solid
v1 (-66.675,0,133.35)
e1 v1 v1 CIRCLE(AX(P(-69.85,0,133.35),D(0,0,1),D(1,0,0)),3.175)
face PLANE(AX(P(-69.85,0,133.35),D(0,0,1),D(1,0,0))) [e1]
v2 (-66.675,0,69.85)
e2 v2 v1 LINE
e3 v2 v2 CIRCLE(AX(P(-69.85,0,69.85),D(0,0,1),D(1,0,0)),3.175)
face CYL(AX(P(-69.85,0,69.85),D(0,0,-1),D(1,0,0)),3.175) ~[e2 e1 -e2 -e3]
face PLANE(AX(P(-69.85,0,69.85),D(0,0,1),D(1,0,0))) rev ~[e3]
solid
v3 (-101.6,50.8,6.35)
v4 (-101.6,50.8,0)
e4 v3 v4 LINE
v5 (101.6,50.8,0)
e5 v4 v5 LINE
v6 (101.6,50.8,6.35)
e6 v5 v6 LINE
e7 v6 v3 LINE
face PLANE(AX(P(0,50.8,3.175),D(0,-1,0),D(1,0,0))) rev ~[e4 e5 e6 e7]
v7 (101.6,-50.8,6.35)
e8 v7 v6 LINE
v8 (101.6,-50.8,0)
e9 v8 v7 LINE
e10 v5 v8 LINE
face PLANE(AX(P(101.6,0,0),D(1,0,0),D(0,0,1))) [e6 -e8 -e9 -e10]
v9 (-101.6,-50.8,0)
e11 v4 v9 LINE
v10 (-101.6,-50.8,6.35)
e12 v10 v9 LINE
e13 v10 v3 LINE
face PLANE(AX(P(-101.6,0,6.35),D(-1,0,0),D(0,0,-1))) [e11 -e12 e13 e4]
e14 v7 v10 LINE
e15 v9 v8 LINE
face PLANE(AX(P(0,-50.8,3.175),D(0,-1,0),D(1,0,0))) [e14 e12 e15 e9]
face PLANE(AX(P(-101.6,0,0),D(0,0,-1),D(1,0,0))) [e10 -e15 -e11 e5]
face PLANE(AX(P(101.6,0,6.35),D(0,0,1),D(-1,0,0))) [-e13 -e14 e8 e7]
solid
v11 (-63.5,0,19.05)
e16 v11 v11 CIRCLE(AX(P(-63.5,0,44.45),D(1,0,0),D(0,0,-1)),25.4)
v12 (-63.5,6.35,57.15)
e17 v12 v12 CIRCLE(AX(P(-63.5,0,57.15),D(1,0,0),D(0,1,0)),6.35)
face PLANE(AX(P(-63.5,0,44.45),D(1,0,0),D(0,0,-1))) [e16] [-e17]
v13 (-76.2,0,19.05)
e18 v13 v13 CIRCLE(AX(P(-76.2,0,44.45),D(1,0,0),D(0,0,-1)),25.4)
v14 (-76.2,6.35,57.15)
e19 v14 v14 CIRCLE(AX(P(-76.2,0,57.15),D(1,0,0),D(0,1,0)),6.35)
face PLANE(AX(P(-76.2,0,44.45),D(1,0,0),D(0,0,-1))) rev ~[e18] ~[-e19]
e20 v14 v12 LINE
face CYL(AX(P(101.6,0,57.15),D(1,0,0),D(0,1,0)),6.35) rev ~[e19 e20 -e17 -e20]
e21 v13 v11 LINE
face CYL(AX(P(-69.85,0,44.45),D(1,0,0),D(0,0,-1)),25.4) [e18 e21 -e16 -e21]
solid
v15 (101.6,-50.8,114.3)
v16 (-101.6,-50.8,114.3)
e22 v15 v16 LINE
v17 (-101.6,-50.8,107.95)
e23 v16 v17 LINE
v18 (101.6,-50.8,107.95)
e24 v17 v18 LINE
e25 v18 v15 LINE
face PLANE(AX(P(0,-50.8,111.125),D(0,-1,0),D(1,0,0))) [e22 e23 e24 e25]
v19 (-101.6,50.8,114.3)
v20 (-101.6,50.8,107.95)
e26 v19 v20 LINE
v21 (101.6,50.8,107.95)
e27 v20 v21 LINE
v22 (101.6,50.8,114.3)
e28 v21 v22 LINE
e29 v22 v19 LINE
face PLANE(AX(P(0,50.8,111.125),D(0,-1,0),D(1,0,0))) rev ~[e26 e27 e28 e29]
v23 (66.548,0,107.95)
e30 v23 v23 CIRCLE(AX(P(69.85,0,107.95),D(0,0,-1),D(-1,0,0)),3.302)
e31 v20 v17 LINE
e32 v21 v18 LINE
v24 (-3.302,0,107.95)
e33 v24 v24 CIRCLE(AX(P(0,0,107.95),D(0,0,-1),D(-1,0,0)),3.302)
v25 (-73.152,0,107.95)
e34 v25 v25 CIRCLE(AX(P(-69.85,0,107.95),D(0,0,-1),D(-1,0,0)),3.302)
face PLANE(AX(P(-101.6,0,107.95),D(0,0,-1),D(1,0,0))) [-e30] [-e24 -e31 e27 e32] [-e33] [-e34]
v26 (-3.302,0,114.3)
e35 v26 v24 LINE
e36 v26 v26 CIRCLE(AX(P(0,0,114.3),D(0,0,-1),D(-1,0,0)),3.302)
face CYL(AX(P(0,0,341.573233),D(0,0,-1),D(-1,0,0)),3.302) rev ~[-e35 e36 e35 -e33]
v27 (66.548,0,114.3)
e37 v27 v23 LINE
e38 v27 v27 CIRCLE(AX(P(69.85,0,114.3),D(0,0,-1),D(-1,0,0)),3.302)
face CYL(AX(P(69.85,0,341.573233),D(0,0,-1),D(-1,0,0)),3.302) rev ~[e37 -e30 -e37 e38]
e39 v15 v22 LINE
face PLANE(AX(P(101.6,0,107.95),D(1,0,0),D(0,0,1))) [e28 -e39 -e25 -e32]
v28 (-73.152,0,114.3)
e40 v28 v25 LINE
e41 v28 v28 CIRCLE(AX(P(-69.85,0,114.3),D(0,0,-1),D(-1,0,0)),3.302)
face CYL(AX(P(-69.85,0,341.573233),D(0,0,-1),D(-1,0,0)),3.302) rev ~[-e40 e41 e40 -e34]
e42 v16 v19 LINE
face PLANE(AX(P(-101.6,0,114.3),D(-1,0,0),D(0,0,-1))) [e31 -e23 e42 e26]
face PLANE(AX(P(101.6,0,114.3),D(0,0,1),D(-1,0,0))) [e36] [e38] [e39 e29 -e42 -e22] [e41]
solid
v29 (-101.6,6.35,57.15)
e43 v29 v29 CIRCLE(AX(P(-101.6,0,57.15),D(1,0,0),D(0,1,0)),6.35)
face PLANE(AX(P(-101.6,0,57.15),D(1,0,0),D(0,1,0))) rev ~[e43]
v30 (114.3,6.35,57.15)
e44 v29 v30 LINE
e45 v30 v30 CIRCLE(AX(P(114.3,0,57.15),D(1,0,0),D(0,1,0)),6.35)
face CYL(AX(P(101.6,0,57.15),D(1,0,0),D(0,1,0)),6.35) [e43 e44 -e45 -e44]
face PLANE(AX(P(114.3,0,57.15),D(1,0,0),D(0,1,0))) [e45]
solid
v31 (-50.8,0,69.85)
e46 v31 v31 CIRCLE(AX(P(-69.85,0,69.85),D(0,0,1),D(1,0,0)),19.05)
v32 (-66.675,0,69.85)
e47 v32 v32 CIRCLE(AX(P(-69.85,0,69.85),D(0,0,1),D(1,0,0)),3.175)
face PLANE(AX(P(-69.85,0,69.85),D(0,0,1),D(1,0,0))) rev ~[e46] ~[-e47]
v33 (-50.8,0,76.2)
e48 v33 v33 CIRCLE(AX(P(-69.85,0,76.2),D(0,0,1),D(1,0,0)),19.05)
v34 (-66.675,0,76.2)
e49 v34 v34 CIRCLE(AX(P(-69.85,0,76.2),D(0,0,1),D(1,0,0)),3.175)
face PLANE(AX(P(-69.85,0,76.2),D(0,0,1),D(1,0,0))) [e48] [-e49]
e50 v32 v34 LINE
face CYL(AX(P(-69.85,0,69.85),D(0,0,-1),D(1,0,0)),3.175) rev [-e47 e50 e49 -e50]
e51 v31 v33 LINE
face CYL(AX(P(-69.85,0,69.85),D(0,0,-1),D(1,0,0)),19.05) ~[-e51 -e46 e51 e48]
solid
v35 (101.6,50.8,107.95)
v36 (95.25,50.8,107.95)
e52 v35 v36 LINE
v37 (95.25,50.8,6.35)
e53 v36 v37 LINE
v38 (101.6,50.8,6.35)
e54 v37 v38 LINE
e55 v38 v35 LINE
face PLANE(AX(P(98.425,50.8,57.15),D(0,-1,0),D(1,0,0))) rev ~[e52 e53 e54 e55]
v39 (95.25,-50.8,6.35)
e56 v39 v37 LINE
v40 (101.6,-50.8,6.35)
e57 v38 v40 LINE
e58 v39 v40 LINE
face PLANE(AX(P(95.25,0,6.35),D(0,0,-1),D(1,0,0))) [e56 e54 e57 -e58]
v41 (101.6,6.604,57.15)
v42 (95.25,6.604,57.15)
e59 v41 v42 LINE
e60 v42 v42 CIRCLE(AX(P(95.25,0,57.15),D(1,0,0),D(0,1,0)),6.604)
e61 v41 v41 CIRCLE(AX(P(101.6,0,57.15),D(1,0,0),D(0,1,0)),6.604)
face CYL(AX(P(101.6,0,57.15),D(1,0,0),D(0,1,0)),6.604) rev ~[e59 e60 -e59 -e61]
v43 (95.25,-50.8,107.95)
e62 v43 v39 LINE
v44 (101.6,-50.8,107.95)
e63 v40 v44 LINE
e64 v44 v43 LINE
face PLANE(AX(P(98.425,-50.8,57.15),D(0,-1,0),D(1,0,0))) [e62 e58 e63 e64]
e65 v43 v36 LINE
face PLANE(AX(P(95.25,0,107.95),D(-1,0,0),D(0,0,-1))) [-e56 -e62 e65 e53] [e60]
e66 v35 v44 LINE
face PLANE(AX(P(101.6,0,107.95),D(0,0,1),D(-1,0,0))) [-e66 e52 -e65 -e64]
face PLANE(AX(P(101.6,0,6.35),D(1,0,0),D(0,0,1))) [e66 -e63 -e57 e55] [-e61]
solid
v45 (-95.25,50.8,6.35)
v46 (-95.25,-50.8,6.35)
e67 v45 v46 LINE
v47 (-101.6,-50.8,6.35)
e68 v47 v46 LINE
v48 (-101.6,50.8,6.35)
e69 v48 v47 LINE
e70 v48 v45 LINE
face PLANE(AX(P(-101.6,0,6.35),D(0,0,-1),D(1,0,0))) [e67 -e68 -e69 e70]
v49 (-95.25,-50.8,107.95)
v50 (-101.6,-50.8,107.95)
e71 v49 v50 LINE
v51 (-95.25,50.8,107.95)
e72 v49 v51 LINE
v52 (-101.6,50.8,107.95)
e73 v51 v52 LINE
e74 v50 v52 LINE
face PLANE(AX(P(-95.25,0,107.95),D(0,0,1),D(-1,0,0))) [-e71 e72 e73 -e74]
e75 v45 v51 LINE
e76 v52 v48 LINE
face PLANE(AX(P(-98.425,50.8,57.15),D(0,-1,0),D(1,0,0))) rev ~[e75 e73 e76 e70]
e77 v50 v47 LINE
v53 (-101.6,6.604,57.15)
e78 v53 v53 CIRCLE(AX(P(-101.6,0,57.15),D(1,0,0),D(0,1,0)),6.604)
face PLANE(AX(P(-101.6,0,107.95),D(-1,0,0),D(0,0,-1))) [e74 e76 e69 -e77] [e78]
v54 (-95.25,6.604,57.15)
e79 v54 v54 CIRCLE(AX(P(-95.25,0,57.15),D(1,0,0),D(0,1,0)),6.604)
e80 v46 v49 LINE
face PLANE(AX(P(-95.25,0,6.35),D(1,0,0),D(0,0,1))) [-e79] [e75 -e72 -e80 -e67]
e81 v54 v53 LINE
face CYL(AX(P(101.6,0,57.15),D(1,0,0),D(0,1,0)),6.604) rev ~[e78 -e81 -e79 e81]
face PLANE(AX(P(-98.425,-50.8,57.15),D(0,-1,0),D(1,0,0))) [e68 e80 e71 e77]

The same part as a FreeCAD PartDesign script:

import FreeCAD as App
import Part
import Sketcher
from FreeCAD import Vector
Q = App.Units.Quantity

doc = App.newDocument("Part")
body = doc.addObject("PartDesign::Body", "Body")

# Sketch on XZ plane
sketch1 = body.newObject("Sketcher::SketchObject", "Sketch")
sketch1.AttachmentSupport = (doc.getObject("XZ_Plane"), [""])
sketch1.MapMode = "FlatFace"
sketch1.addGeometry([
    Part.LineSegment(Vector(-102, 6, 0), Vector(-102, 0, 0)),
    Part.LineSegment(Vector(-102, 0, 0), Vector(102, 0, 0)),
    Part.LineSegment(Vector(102, 0, 0), Vector(102, 6, 0)),
    Part.LineSegment(Vector(102, 6, 0), Vector(-102, 6, 0)),
], False)
sketch1.addConstraint([
    Sketcher.Constraint("Coincident", 0, 2, 1, 1),
    Sketcher.Constraint("Coincident", 1, 2, 2, 1),
    Sketcher.Constraint("Coincident", 2, 2, 3, 1),
    Sketcher.Constraint("Coincident", 3, 2, 0, 1),
    Sketcher.Constraint("Vertical", 0),
    Sketcher.Constraint("Horizontal", 1),
    Sketcher.Constraint("Vertical", 2),
    Sketcher.Constraint("Horizontal", 3),
    Sketcher.Constraint("Symmetric", 0, 2, 1, 2, -1, 1),
    Sketcher.Constraint("DistanceX", 1, 1, 1, 2, Q("8 in")),
    Sketcher.Constraint("DistanceY", 0, 2, 0, 1, Q("0.25 in")),
])
pad1 = body.newObject("PartDesign::Pad", "Pad")
pad1.Profile = sketch1
pad1.Length = Q("4 in")
pad1.Midplane = True
body2 = doc.addObject("PartDesign::Body", "Body001")

# Sketch on XZ plane
sketch2 = body2.newObject("Sketcher::SketchObject", "Sketch001")
sketch2.AttachmentSupport = (doc.getObject("XZ_Plane001"), [""])
sketch2.MapMode = "FlatFace"
sketch2.addGeometry([
    Part.LineSegment(Vector(-102, 114, 0), Vector(-102, 108, 0)),
    Part.LineSegment(Vector(-102, 108, 0), Vector(102, 108, 0)),
    Part.LineSegment(Vector(102, 108, 0), Vector(102, 114, 0)),
    Part.LineSegment(Vector(102, 114, 0), Vector(-102, 114, 0)),
], False)
sketch2.addConstraint([
    Sketcher.Constraint("Coincident", 0, 2, 1, 1),
    Sketcher.Constraint("Coincident", 1, 2, 2, 1),
    Sketcher.Constraint("Coincident", 2, 2, 3, 1),
    Sketcher.Constraint("Coincident", 3, 2, 0, 1),
    Sketcher.Constraint("Vertical", 0),
    Sketcher.Constraint("Horizontal", 1),
    Sketcher.Constraint("Vertical", 2),
    Sketcher.Constraint("Horizontal", 3),
    Sketcher.Constraint("DistanceX", 1, 1, 1, 2, Q("8 in")),
    Sketcher.Constraint("DistanceX", 0, 2, -1, 1, Q("4 in")),
    Sketcher.Constraint("DistanceY", 0, 2, 0, 1, Q("0.25 in")),
    Sketcher.Constraint("DistanceY", -1, 1, 2, 2, Q("4.5 in")),
])
pad2 = body2.newObject("PartDesign::Pad", "Pad001")
pad2.Profile = sketch2
pad2.Length = Q("4 in")
pad2.Midplane = True

# Sketch on XY plane
sketch3 = body2.newObject("Sketcher::SketchObject", "Sketch002")
sketch3.AttachmentSupport = (doc.getObject("XY_Plane001"), [""])
sketch3.MapMode = "FlatFace"
sketch3.AttachmentOffset = App.Placement(Vector(0, 0, 4.5 * 25.4), App.Rotation())
sketch3.addGeometry([
    Part.Circle(Vector(-69.8, 0, 0), Vector(0, 0, 1), 3.3),
    Part.Circle(Vector(0, 0, 0), Vector(0, 0, 1), 3.3),
    Part.Circle(Vector(69.8, 0, 0), Vector(0, 0, 1), 3.3),
], False)
sketch3.addConstraint([
    Sketcher.Constraint("Coincident", 1, 3, -1, 1),
    Sketcher.Constraint("Equal", 0, 1),
    Sketcher.Constraint("Equal", 1, 2),
    Sketcher.Constraint("Symmetric", 0, 3, 2, 3, -1, 1),
    Sketcher.Constraint("PointOnObject", 0, 3, -1),
    Sketcher.Constraint("Diameter", 0, Q("0.26 in")),
    Sketcher.Constraint("DistanceX", 0, 3, 2, 3, Q("5.5 in")),
])
doc.recompute()
hole = body2.newObject("PartDesign::Hole", "Hole")
hole.Profile = sketch3
hole.ThreadType = "None"
hole.Diameter = Q("0.26 in")
hole.DepthType = "ThroughAll"
body3 = doc.addObject("PartDesign::Body", "Body002")

# Sketch on XZ plane
sketch4 = body3.newObject("Sketcher::SketchObject", "Sketch003")
sketch4.AttachmentSupport = (doc.getObject("XZ_Plane002"), [""])
sketch4.MapMode = "FlatFace"
sketch4.addGeometry([
    Part.LineSegment(Vector(-102, 108, 0), Vector(-102, 6, 0)),
    Part.LineSegment(Vector(-102, 6, 0), Vector(-95, 6, 0)),
    Part.LineSegment(Vector(-95, 6, 0), Vector(-95, 108, 0)),
    Part.LineSegment(Vector(-95, 108, 0), Vector(-102, 108, 0)),
], False)
sketch4.addConstraint([
    Sketcher.Constraint("Coincident", 0, 2, 1, 1),
    Sketcher.Constraint("Coincident", 1, 2, 2, 1),
    Sketcher.Constraint("Coincident", 2, 2, 3, 1),
    Sketcher.Constraint("Coincident", 3, 2, 0, 1),
    Sketcher.Constraint("Vertical", 0),
    Sketcher.Constraint("Horizontal", 1),
    Sketcher.Constraint("Vertical", 2),
    Sketcher.Constraint("Horizontal", 3),
    Sketcher.Constraint("DistanceY", 0, 2, 0, 1, Q("4 in")),
    Sketcher.Constraint("DistanceX", 0, 2, -1, 1, Q("4 in")),
    Sketcher.Constraint("DistanceX", 1, 1, 1, 2, Q("0.25 in")),
    Sketcher.Constraint("DistanceY", -1, 1, 0, 2, Q("0.25 in")),
])
pad3 = body3.newObject("PartDesign::Pad", "Pad002")
pad3.Profile = sketch4
pad3.Type = "TwoLengths"
pad3.Length = Q("2 in")
pad3.Length2 = Q("2 in")
body4 = doc.addObject("PartDesign::Body", "Body003")

# Sketch on XZ plane
sketch5 = body4.newObject("Sketcher::SketchObject", "Sketch004")
sketch5.AttachmentSupport = (doc.getObject("XZ_Plane003"), [""])
sketch5.MapMode = "FlatFace"
sketch5.addGeometry([
    Part.LineSegment(Vector(95, 6, 0), Vector(102, 6, 0)),
    Part.LineSegment(Vector(102, 6, 0), Vector(102, 108, 0)),
    Part.LineSegment(Vector(102, 108, 0), Vector(95, 108, 0)),
    Part.LineSegment(Vector(95, 108, 0), Vector(95, 6, 0)),
], False)
sketch5.addConstraint([
    Sketcher.Constraint("Coincident", 0, 2, 1, 1),
    Sketcher.Constraint("Coincident", 1, 2, 2, 1),
    Sketcher.Constraint("Coincident", 2, 2, 3, 1),
    Sketcher.Constraint("Coincident", 3, 2, 0, 1),
    Sketcher.Constraint("Horizontal", 0),
    Sketcher.Constraint("Vertical", 1),
    Sketcher.Constraint("Horizontal", 2),
    Sketcher.Constraint("Vertical", 3),
    Sketcher.Constraint("DistanceY", 1, 1, 1, 2, Q("4 in")),
    Sketcher.Constraint("DistanceX", -1, 1, 0, 2, Q("4 in")),
    Sketcher.Constraint("DistanceX", 0, 1, 0, 2, Q("0.25 in")),
    Sketcher.Constraint("DistanceY", -1, 1, 0, 2, Q("0.25 in")),
])
pad4 = body4.newObject("PartDesign::Pad", "Pad003")
pad4.Profile = sketch5
pad4.Type = "TwoLengths"
pad4.Length = Q("2 in")
pad4.Length2 = Q("2 in")
body5 = doc.addObject("PartDesign::Body", "Body004")

# Sketch on YZ plane
sketch6 = body5.newObject("Sketcher::SketchObject", "Sketch005")
sketch6.AttachmentSupport = (doc.getObject("YZ_Plane004"), [""])
sketch6.MapMode = "FlatFace"
sketch6.AttachmentOffset = App.Placement(Vector(0, 0, 4 * 25.4), App.Rotation())
sketch6.addGeometry(Part.Circle(Vector(0, 57, 0), Vector(0, 0, 1), 7), False)
sketch6.addConstraint([
    Sketcher.Constraint("PointOnObject", 0, 3, -2),
    Sketcher.Constraint("Diameter", 0, Q("0.52 in")),
    Sketcher.Constraint("DistanceY", -1, 1, 0, 3, Q("2.25 in")),
])
pad5 = body5.newObject("PartDesign::Pad", "Pad004")
pad5.Profile = sketch6
pad5.Length = 203.201
pad5.Reversed = True
doc.recompute()

body6 = doc.addObject("PartDesign::Body", "Body005")
body6.BaseFeature = body5
boolean = body3.newObject("PartDesign::Boolean", "Boolean")
boolean.Type = "Cut"
boolean.addObjects([body6])
doc.recompute()

boolean2 = body4.newObject("PartDesign::Boolean", "Boolean001")
boolean2.Type = "Cut"
boolean2.addObjects([body5])
body7 = doc.addObject("PartDesign::Body", "Body006")

# Sketch on YZ plane
sketch7 = body7.newObject("Sketcher::SketchObject", "Sketch006")
sketch7.AttachmentSupport = (doc.getObject("YZ_Plane006"), [""])
sketch7.MapMode = "FlatFace"
sketch7.AttachmentOffset = App.Placement(Vector(0, 0, 4 * 25.4), App.Rotation())
sketch7.addGeometry(Part.Circle(Vector(0, 57, 0), Vector(0, 0, 1), 6), False)
sketch7.addConstraint([
    Sketcher.Constraint("PointOnObject", 0, 3, -2),
    Sketcher.Constraint("Diameter", 0, Q("0.5 in")),
    Sketcher.Constraint("DistanceY", -1, 1, 0, 3, Q("2.25 in")),
])
pad6 = body7.newObject("PartDesign::Pad", "Pad005")
pad6.Profile = sketch7
pad6.Type = "TwoLengths"
pad6.Length = Q("0.5 in")
pad6.Length2 = Q("8 in")
body8 = doc.addObject("PartDesign::Body", "Body007")

# Sketch on XZ plane
sketch8 = body8.newObject("Sketcher::SketchObject", "Sketch007")
sketch8.AttachmentSupport = (doc.getObject("XZ_Plane007"), [""])
sketch8.MapMode = "FlatFace"
sketch8.addGeometry([
    Part.LineSegment(Vector(-76, 44, 0), Vector(-76, 19, 0)),
    Part.LineSegment(Vector(-76, 19, 0), Vector(-64, 19, 0)),
    Part.LineSegment(Vector(-64, 19, 0), Vector(-64, 44, 0)),
    Part.LineSegment(Vector(-64, 44, 0), Vector(-76, 44, 0)),
], False)
sketch8.addGeometry(Part.LineSegment(Vector(-76, 44, 0), Vector(-64, 44, 0)), True)  # axis
sketch8.addConstraint([
    Sketcher.Constraint("Coincident", 0, 2, 1, 1),
    Sketcher.Constraint("Coincident", 1, 2, 2, 1),
    Sketcher.Constraint("Coincident", 2, 2, 3, 1),
    Sketcher.Constraint("Coincident", 3, 2, 0, 1),
    Sketcher.Constraint("Vertical", 0),
    Sketcher.Constraint("Horizontal", 1),
    Sketcher.Constraint("Vertical", 2),
    Sketcher.Constraint("Horizontal", 3),
    Sketcher.Constraint("Horizontal", 4),
    Sketcher.Constraint("Coincident", 4, 1, 3, 2),
    Sketcher.Constraint("Vertical", 1, 2, 4, 2),
    Sketcher.Constraint("DistanceY", 0, 2, 0, 1, Q("1 in")),
    Sketcher.Constraint("DistanceX", 1, 1, 1, 2, Q("0.5 in")),
    Sketcher.Constraint("DistanceX", 0, 2, -1, 1, Q("3 in")),
    Sketcher.Constraint("DistanceY", -1, 1, 0, 2, Q("0.75 in")),
])
revolution = body8.newObject("PartDesign::Revolution", "Revolution")
revolution.Profile = sketch8
revolution.ReferenceAxis = (sketch8, ["Axis0"])
revolution.Angle = 360
doc.recompute()

body9 = doc.addObject("PartDesign::Body", "Body008")
body9.BaseFeature = body7
boolean3 = body8.newObject("PartDesign::Boolean", "Boolean002")
boolean3.Type = "Cut"
boolean3.addObjects([body9])
doc.recompute()
body10 = doc.addObject("PartDesign::Body", "Body009")

# Sketch on XY plane
sketch9 = body10.newObject("Sketcher::SketchObject", "Sketch008")
sketch9.AttachmentSupport = (doc.getObject("XY_Plane009"), [""])
sketch9.MapMode = "FlatFace"
sketch9.AttachmentOffset = App.Placement(Vector(0, 0, 2.75 * 25.4), App.Rotation())
sketch9.addGeometry(Part.Circle(Vector(-69.8, 0, 0), Vector(0, 0, 1), 3.2), False)
sketch9.addConstraint([
    Sketcher.Constraint("PointOnObject", 0, 3, -1),
    Sketcher.Constraint("Diameter", 0, Q("0.25 in")),
    Sketcher.Constraint("DistanceX", 0, 3, -1, 1, Q("2.75 in")),
])
pad7 = body10.newObject("PartDesign::Pad", "Pad006")
pad7.Profile = sketch9
pad7.Length = Q("2.5 in")
body11 = doc.addObject("PartDesign::Body", "Body010")

# Sketch on XY plane
sketch10 = body11.newObject("Sketcher::SketchObject", "Sketch009")
sketch10.AttachmentSupport = (doc.getObject("XY_Plane010"), [""])
sketch10.MapMode = "FlatFace"
sketch10.AttachmentOffset = App.Placement(Vector(0, 0, 2.75 * 25.4), App.Rotation())
sketch10.addGeometry([
    Part.Circle(Vector(-69.8, 0, 0), Vector(0, 0, 1), 19.1),
    Part.Circle(Vector(-69.8, 0, 0), Vector(0, 0, 1), 3.2),
], False)
sketch10.addConstraint([
    Sketcher.Constraint("Coincident", 1, 3, 0, 3),
    Sketcher.Constraint("PointOnObject", 0, 3, -1),
    Sketcher.Constraint("Diameter", 0, Q("1.5 in")),
    Sketcher.Constraint("Diameter", 1, Q("0.25 in")),
    Sketcher.Constraint("DistanceX", 0, 3, -1, 1, Q("2.75 in")),
])
pad8 = body11.newObject("PartDesign::Pad", "Pad007")
pad8.Profile = sketch10
pad8.Length = Q("0.25 in")

doc.recompute()
